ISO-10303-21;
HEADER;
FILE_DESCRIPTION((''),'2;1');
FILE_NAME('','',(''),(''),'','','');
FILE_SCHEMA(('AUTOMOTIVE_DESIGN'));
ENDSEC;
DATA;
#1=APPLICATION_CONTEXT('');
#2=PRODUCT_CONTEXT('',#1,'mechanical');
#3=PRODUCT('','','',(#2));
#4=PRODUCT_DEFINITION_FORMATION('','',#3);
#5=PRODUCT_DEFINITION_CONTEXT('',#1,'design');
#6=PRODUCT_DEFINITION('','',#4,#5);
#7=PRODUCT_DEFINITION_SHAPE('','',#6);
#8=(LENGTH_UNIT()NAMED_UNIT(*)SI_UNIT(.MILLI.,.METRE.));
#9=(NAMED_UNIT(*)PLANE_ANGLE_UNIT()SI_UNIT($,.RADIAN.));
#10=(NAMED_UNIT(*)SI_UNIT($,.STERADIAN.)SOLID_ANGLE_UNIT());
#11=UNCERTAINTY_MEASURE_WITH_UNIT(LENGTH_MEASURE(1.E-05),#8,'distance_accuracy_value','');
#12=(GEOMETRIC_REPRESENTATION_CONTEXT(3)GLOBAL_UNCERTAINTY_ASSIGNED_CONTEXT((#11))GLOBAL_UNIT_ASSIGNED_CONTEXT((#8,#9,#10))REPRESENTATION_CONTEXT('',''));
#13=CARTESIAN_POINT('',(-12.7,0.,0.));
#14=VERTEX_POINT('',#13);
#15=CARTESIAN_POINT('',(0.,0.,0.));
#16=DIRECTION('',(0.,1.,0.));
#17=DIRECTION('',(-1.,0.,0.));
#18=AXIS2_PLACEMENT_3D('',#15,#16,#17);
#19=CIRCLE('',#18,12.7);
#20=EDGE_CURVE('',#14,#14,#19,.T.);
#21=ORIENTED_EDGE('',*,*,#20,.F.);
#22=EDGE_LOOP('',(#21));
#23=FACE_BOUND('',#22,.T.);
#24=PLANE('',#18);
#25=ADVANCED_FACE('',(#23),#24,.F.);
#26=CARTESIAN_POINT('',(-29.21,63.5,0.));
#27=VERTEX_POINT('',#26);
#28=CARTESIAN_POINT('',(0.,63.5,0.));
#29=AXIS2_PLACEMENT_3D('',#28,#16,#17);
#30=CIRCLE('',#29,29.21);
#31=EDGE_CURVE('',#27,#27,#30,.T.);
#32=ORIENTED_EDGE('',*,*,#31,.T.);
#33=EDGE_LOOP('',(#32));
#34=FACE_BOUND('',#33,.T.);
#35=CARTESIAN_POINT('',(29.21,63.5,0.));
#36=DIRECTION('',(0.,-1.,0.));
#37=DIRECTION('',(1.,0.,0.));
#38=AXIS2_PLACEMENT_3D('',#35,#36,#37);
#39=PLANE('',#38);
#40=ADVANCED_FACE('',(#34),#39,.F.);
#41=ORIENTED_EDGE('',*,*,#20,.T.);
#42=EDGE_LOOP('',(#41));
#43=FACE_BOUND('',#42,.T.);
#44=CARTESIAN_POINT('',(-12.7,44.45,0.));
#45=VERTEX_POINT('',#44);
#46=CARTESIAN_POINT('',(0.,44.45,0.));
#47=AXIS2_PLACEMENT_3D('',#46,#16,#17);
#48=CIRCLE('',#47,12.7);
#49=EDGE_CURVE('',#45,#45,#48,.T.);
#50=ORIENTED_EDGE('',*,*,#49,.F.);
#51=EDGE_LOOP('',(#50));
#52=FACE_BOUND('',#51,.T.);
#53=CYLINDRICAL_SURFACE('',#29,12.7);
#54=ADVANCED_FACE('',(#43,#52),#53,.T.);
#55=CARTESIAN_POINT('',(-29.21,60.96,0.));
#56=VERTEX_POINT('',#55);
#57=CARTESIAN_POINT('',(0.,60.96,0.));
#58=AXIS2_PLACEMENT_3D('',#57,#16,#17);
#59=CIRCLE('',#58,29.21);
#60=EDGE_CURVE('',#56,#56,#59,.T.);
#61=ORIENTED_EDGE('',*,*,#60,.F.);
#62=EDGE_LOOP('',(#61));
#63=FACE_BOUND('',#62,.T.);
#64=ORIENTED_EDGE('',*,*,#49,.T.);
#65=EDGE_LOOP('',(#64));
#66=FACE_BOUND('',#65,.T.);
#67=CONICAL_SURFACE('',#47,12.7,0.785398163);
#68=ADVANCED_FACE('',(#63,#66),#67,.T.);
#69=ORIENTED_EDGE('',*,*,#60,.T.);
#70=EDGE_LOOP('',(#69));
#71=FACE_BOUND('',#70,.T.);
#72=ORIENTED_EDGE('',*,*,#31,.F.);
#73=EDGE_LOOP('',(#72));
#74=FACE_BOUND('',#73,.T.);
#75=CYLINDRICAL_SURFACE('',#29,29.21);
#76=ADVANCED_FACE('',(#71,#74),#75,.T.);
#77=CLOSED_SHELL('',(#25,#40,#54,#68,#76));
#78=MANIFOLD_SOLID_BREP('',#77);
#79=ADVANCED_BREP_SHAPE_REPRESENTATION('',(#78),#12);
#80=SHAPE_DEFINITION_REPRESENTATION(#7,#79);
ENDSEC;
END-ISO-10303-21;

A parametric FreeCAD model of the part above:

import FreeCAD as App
import Part
import Sketcher
Q = App.Units.Quantity


def add_polygon(sketch, points):
    """Adds a closed chain of lines whose ends are joined by coincident constraints."""
    first, n = sketch.GeometryCount, len(points)
    for a, b in zip(points, points[1:] + points[:1]):
        sketch.addGeometry(Part.LineSegment(App.Vector(*a, 0), App.Vector(*b, 0)), False)
    for i in range(n):
        sketch.addConstraint(Sketcher.Constraint("Coincident", first + i, 2, first + (i + 1) % n, 1))

doc = App.newDocument("Part")
params = doc.addObject("Spreadsheet::Sheet", "Params")
for row, (alias, value) in enumerate([
    ("sketch1_width", "0.5 in"),
    ("sketch1_height", "0.1 in"),
    ("sketch1_height2", "2.5 in"),
    ("sketch1_width2", "1.15 in"),
    ("revolution_angle", "360 deg"),
], start=1):
    params.set(f"A{row}", alias)
    params.set(f"B{row}", "=" + value)
    params.setAlias(f"B{row}", alias)

body = doc.addObject("PartDesign::Body", "Body")

# Sketch on XY plane
sketch1 = body.newObject("Sketcher::SketchObject", "Sketch")
sketch1.AttachmentSupport = (doc.getObject("XY_Plane"), [""])
sketch1.MapMode = "FlatFace"
add_polygon(sketch1, [(0, 0), (12.7, 0), (12.7, 44.45), (29.21, 60.96), (29.21, 63.5), (0, 63.5)])  # lines 0-5
sketch1.addConstraint(Sketcher.Constraint("Horizontal", 0))
sketch1.addConstraint(Sketcher.Constraint("Vertical", 1))
sketch1.addConstraint(Sketcher.Constraint("Vertical", 3))
sketch1.addConstraint(Sketcher.Constraint("Horizontal", 4))
sketch1.addConstraint(Sketcher.Constraint("Vertical", 5))
sketch1.addConstraint(Sketcher.Constraint("Coincident", 5, 2, -1, 1))
sketch1.addConstraint(Sketcher.Constraint("DistanceX", 0, 1, 0, 2, Q("0.5 in")))
sketch1.addConstraint(Sketcher.Constraint("DistanceY", 3, 1, 3, 2, Q("0.1 in")))
sketch1.addConstraint(Sketcher.Constraint("DistanceY", 5, 2, 5, 1, Q("2.5 in")))
sketch1.addConstraint(Sketcher.Constraint("Angle", 2, Q("45 deg")))
sketch1.addConstraint(Sketcher.Constraint("DistanceX", 4, 2, 4, 1, Q("1.15 in")))
sketch1.setExpression("Constraints[12]", "Params.sketch1_width")
sketch1.setExpression("Constraints[13]", "Params.sketch1_height")
sketch1.setExpression("Constraints[14]", "Params.sketch1_height2")
sketch1.setExpression("Constraints[16]", "Params.sketch1_width2")
revolution = body.newObject("PartDesign::Revolution", "Revolution")
revolution.Profile = sketch1
revolution.ReferenceAxis = (sketch1, ["V_Axis"])
revolution.setExpression("Angle", "Params.revolution_angle")

doc.recompute()
